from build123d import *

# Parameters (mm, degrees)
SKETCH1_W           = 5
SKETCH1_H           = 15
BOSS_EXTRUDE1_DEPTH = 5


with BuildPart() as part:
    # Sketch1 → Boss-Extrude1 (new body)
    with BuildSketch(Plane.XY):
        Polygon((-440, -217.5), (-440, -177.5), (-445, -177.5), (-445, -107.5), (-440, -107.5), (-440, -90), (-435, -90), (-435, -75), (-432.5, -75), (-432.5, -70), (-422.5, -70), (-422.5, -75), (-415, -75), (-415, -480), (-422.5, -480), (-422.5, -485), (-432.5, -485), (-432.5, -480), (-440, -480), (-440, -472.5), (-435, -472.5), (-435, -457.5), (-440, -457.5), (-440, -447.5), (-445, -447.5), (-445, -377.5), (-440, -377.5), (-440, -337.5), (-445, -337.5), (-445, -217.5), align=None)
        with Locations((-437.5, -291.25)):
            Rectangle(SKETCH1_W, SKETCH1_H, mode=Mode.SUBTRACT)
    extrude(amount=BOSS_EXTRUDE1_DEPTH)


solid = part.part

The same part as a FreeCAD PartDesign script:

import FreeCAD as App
import Part
import Sketcher
from FreeCAD import Vector


def add_polygon(sketch, points):
    """Adds a closed chain of lines whose ends are joined by coincident constraints."""
    first, n = sketch.GeometryCount, len(points)
    for a, b in zip(points, points[1:] + points[:1]):
        sketch.addGeometry(Part.LineSegment(App.Vector(*a, 0), App.Vector(*b, 0)), False)
    for i in range(n):
        sketch.addConstraint(Sketcher.Constraint("Coincident", first + i, 2, first + (i + 1) % n, 1))

doc = App.newDocument("Part")
body = doc.addObject("PartDesign::Body", "Body")

# Sketch on XY plane
sketch1 = body.newObject("Sketcher::SketchObject", "Sketch")
sketch1.AttachmentSupport = (doc.getObject("XY_Plane"), [""])
sketch1.MapMode = "FlatFace"
add_polygon(sketch1, [(-440, -177.5), (-440, -217.5), (-445, -217.5), (-445, -337.5), (-440, -337.5), (-440, -377.5), (-445, -377.5), (-445, -447.5), (-440, -447.5), (-440, -457.5), (-435, -457.5), (-435, -472.5), (-440, -472.5), (-440, -480), (-432.5, -480), (-432.5, -485), (-422.5, -485), (-422.5, -480), (-415, -480), (-415, -75), (-422.5, -75), (-422.5, -70), (-432.5, -70), (-432.5, -75), (-435, -75), (-435, -90), (-440, -90), (-440, -107.5), (-445, -107.5), (-445, -177.5)])  # lines 0-29
add_polygon(sketch1, [(-440, -298.8), (-440, -283.8), (-435, -283.8), (-435, -298.8)])  # lines 30-33
sketch1.addConstraint([
    Sketcher.Constraint("Vertical", 0),
    Sketcher.Constraint("Horizontal", 1),
    Sketcher.Constraint("Vertical", 2),
    Sketcher.Constraint("Horizontal", 3),
    Sketcher.Constraint("Vertical", 4),
    Sketcher.Constraint("Horizontal", 5),
    Sketcher.Constraint("Vertical", 6),
    Sketcher.Constraint("Horizontal", 7),
    Sketcher.Constraint("Vertical", 8),
    Sketcher.Constraint("Horizontal", 9),
    Sketcher.Constraint("Vertical", 10),
    Sketcher.Constraint("Horizontal", 11),
    Sketcher.Constraint("Vertical", 12),
    Sketcher.Constraint("Horizontal", 13),
    Sketcher.Constraint("Vertical", 14),
    Sketcher.Constraint("Horizontal", 15),
    Sketcher.Constraint("Vertical", 16),
    Sketcher.Constraint("Horizontal", 17),
    Sketcher.Constraint("Vertical", 18),
    Sketcher.Constraint("Horizontal", 19),
    Sketcher.Constraint("Vertical", 20),
    Sketcher.Constraint("Horizontal", 21),
    Sketcher.Constraint("Vertical", 22),
    Sketcher.Constraint("Horizontal", 23),
    Sketcher.Constraint("Vertical", 24),
    Sketcher.Constraint("Horizontal", 25),
    Sketcher.Constraint("Vertical", 26),
    Sketcher.Constraint("Horizontal", 27),
    Sketcher.Constraint("Vertical", 28),
    Sketcher.Constraint("Horizontal", 29),
    Sketcher.Constraint("Vertical", 30),
    Sketcher.Constraint("Horizontal", 31),
    Sketcher.Constraint("Vertical", 32),
    Sketcher.Constraint("Horizontal", 33),
    Sketcher.Constraint("Horizontal", 13, 2, 16, 2),
    Sketcher.Constraint("Horizontal", 19, 2, 22, 2),
    Sketcher.Constraint("Vertical", 0, 2, 3, 2),
    Sketcher.Constraint("Vertical", 2, 2, 5, 2),
    Sketcher.Constraint("Vertical", 4, 2, 7, 2),
    Sketcher.Constraint("Vertical", 8, 2, 11, 2),
    Sketcher.Constraint("Vertical", 16, 2, 19, 2),
    Sketcher.Constraint("Vertical", 14, 2, 21, 2),
    Sketcher.Constraint("Vertical", 10, 2, 23, 2),
    Sketcher.Constraint("Vertical", 12, 2, 25, 2),
    Sketcher.Constraint("Vertical", 6, 2, 27, 2),
    Sketcher.Constraint("Vertical", 29, 2, 30, 2),
    Sketcher.Constraint("Vertical", 24, 2, 31, 2),
    Sketcher.Constraint("Equal", 7, 9),
    Sketcher.Constraint("Equal", 13, 17),
    Sketcher.Constraint("Equal", 0, 4),
    Sketcher.Constraint("Equal", 21, 8),
    Sketcher.Constraint("Equal", 19, 12),
    Sketcher.Constraint("Equal", 33, 14),
    Sketcher.Constraint("Equal", 16, 20),
    Sketcher.Constraint("Equal", 10, 24),
    Sketcher.Constraint("Equal", 6, 28),
    Sketcher.Constraint("Equal", 24, 30),
    Sketcher.Constraint("DistanceX", 1, 2, 1, 1, 5.0),
    Sketcher.Constraint("DistanceX", 15, 1, 15, 2, 10.0),
    Sketcher.Constraint("DistanceY", 0, 2, 0, 1, 40.0),
    Sketcher.Constraint("DistanceY", 2, 2, 2, 1, 120.0),
    Sketcher.Constraint("DistanceY", 6, 2, 6, 1, 70.0),
    Sketcher.Constraint("DistanceY", 10, 2, 10, 1, 15.0),
    Sketcher.Constraint("DistanceY", 18, 1, 18, 2, 405.0),
    Sketcher.Constraint("DistanceX", 13, 1, 13, 2, 7.5),
    Sketcher.Constraint("DistanceX", 0, 2, -1, 1, 440.0),
    Sketcher.Constraint("DistanceY", 12, 2, -1, 1, 480.0),
    Sketcher.Constraint("DistanceY", 30, 2, -1, 1, 283.75),
])
pad1 = body.newObject("PartDesign::Pad", "Pad")
pad1.Profile = sketch1
pad1.Length = 5

doc.recompute()
